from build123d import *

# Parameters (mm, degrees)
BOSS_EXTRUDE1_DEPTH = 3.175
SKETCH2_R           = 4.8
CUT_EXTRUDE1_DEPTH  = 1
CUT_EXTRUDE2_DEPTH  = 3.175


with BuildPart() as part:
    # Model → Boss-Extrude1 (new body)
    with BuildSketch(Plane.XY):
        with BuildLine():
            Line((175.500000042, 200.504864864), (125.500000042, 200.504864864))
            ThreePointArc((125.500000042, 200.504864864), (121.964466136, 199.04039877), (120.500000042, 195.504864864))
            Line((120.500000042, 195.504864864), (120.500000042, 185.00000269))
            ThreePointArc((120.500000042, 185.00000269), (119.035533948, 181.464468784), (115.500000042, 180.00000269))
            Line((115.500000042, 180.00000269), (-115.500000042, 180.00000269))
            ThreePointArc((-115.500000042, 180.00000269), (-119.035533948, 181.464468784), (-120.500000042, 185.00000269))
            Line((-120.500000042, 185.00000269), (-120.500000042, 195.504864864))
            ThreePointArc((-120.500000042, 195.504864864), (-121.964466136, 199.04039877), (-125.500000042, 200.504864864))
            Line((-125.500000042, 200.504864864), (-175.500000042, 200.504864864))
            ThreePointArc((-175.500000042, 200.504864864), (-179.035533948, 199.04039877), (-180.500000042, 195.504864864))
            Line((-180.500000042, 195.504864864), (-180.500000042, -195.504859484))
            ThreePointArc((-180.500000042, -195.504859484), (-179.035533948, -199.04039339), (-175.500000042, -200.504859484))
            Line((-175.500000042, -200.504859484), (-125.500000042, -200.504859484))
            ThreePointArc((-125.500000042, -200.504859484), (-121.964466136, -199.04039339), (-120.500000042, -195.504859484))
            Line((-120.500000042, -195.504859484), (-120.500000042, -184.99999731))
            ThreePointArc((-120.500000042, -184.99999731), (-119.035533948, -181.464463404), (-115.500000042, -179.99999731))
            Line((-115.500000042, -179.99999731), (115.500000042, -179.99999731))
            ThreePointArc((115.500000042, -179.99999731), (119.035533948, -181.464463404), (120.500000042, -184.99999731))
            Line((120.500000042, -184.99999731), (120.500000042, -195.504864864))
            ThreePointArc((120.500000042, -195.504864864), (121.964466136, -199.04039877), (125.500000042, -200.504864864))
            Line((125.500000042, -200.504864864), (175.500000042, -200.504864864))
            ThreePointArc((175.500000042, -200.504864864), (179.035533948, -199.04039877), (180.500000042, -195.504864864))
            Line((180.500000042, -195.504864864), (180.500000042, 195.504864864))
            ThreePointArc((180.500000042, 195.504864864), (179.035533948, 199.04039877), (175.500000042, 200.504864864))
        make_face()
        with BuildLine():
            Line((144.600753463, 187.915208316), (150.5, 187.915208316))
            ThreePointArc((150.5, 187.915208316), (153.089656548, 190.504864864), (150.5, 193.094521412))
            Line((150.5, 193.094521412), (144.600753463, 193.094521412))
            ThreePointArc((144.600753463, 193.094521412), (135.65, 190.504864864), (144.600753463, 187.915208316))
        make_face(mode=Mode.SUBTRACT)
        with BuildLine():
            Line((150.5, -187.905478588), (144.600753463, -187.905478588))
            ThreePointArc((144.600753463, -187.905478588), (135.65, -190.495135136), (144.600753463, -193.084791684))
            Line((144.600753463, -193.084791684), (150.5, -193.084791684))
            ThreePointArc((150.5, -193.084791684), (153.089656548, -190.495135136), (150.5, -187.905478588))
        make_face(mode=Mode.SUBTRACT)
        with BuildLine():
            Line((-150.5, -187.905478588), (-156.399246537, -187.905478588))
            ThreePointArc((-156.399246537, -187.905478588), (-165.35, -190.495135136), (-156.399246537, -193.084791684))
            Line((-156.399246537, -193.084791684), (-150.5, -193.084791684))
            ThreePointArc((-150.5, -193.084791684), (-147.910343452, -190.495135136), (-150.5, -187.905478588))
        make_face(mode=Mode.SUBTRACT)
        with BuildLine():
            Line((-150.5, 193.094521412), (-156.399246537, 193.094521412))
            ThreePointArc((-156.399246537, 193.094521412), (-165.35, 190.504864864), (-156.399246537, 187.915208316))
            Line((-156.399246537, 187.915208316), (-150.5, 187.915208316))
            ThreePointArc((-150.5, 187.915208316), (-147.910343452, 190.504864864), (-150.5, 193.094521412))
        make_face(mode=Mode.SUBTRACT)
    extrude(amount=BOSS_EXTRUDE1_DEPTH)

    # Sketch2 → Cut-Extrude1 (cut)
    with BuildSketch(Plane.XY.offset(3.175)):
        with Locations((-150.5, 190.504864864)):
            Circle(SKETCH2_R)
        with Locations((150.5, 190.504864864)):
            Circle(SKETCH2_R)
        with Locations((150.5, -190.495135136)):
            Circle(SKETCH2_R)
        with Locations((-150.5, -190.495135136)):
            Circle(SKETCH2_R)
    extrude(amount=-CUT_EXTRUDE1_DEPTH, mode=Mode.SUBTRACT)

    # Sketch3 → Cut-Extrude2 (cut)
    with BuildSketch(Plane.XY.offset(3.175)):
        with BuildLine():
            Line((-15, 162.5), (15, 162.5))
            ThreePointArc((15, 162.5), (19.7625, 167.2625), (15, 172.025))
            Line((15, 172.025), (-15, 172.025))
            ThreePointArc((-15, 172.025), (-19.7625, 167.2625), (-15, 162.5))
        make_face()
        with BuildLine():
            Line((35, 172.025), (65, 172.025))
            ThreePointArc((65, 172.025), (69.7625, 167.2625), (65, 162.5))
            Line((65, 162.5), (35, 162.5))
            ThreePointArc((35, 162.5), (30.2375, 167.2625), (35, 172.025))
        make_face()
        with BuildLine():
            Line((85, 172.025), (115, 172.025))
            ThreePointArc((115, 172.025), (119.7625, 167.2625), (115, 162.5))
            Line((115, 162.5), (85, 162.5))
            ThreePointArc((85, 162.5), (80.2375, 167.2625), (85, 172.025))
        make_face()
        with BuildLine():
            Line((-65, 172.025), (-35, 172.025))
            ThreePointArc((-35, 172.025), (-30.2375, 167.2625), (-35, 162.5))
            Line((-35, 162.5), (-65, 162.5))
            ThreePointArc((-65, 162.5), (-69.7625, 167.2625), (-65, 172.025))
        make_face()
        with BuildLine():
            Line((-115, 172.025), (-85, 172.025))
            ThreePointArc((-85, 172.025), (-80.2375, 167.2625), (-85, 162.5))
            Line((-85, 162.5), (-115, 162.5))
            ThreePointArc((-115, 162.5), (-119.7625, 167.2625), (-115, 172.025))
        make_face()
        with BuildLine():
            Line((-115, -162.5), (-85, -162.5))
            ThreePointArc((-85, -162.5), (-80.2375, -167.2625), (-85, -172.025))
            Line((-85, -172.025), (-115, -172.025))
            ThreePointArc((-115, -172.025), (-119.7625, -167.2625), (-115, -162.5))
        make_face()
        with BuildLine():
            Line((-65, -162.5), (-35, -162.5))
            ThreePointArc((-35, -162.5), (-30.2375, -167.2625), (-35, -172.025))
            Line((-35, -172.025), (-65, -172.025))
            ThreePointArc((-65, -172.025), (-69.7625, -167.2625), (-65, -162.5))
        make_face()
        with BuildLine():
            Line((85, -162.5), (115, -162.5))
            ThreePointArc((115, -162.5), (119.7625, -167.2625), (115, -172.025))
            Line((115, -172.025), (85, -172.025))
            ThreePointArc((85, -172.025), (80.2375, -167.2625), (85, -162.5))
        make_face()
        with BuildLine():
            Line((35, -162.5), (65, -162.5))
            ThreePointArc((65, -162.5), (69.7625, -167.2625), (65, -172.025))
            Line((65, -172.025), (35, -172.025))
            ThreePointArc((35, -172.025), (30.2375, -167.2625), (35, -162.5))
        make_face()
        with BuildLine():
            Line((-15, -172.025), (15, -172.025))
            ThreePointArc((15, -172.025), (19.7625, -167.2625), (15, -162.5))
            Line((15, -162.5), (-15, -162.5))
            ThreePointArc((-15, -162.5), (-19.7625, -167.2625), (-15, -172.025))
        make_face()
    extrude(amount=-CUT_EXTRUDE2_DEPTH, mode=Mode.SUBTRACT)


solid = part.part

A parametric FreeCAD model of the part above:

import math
import FreeCAD as App
import Part
import Sketcher
Q = App.Units.Quantity

doc = App.newDocument("Part")
params = doc.addObject("Spreadsheet::Sheet", "Params")
for row, (alias, value) in enumerate([
    ("sketch1_radius", "5 mm"),
    ("sketch1_width", "50 mm"),
    ("sketch1_width2", "231 mm"),
    ("sketch1_radius2", "4.85 mm"),
    ("pad1_length", "3.175 mm"),
    ("sketch2_diameter", "9.6 mm"),
    ("pocket1_length", "1 mm"),
    ("sketch3_width", "30 mm"),
    ("pocket2_length", "3.175 mm"),
], start=1):
    params.set(f"A{row}", alias)
    params.set(f"B{row}", "=" + value)
    params.setAlias(f"B{row}", alias)

body = doc.addObject("PartDesign::Body", "Body")

sketch1 = body.newObject("Sketcher::SketchObject", "Sketch")
sketch1.AttachmentSupport = (doc.getObject("XY_Plane"), [""])
sketch1.MapMode = "FlatFace"
sketch1.addGeometry(Part.LineSegment(App.Vector(175.5, 200.5, 0), App.Vector(125.5, 200.5, 0)), False)
sketch1.addGeometry(Part.ArcOfCircle(Part.Circle(App.Vector(125.5, 195.5, 0), App.Vector(0, 0, 1), 5), math.radians(90), math.radians(180)), False)
sketch1.addGeometry(Part.LineSegment(App.Vector(120.5, 195.5, 0), App.Vector(120.5, 185, 0)), False)
sketch1.addGeometry(Part.ArcOfCircle(Part.Circle(App.Vector(115.5, 185, 0), App.Vector(0, 0, 1), 5), math.radians(-90), math.radians(0)), False)
sketch1.addGeometry(Part.LineSegment(App.Vector(115.5, 180, 0), App.Vector(-115.5, 180, 0)), False)
sketch1.addGeometry(Part.ArcOfCircle(Part.Circle(App.Vector(-115.5, 185, 0), App.Vector(0, 0, 1), 5), math.radians(180), math.radians(270)), False)
sketch1.addGeometry(Part.LineSegment(App.Vector(-120.5, 185, 0), App.Vector(-120.5, 195.5, 0)), False)
sketch1.addGeometry(Part.ArcOfCircle(Part.Circle(App.Vector(-125.5, 195.5, 0), App.Vector(0, 0, 1), 5), math.radians(0), math.radians(90)), False)
sketch1.addGeometry(Part.LineSegment(App.Vector(-125.5, 200.5, 0), App.Vector(-175.5, 200.5, 0)), False)
sketch1.addGeometry(Part.ArcOfCircle(Part.Circle(App.Vector(-175.5, 195.5, 0), App.Vector(0, 0, 1), 5), math.radians(90), math.radians(180)), False)
sketch1.addGeometry(Part.LineSegment(App.Vector(-180.5, 195.5, 0), App.Vector(-180.5, -195.5, 0)), False)
sketch1.addGeometry(Part.ArcOfCircle(Part.Circle(App.Vector(-175.5, -195.5, 0), App.Vector(0, 0, 1), 5), math.radians(180), math.radians(270)), False)
sketch1.addGeometry(Part.LineSegment(App.Vector(-175.5, -200.5, 0), App.Vector(-125.5, -200.5, 0)), False)
sketch1.addGeometry(Part.ArcOfCircle(Part.Circle(App.Vector(-125.5, -195.5, 0), App.Vector(0, 0, 1), 5), math.radians(-90), math.radians(0)), False)
sketch1.addGeometry(Part.LineSegment(App.Vector(-120.5, -195.5, 0), App.Vector(-120.5, -185, 0)), False)
sketch1.addGeometry(Part.ArcOfCircle(Part.Circle(App.Vector(-115.5, -185, 0), App.Vector(0, 0, 1), 5), math.radians(90), math.radians(180)), False)
sketch1.addGeometry(Part.LineSegment(App.Vector(-115.5, -180, 0), App.Vector(115.5, -180, 0)), False)
sketch1.addGeometry(Part.ArcOfCircle(Part.Circle(App.Vector(115.5, -185, 0), App.Vector(0, 0, 1), 5), math.radians(0), math.radians(90)), False)
sketch1.addGeometry(Part.LineSegment(App.Vector(120.5, -185, 0), App.Vector(120.5, -195.5, 0)), False)
sketch1.addGeometry(Part.ArcOfCircle(Part.Circle(App.Vector(125.5, -195.5, 0), App.Vector(0, 0, 1), 5), math.radians(180), math.radians(270)), False)
sketch1.addGeometry(Part.LineSegment(App.Vector(125.5, -200.5, 0), App.Vector(175.5, -200.5, 0)), False)
sketch1.addGeometry(Part.ArcOfCircle(Part.Circle(App.Vector(175.5, -195.5, 0), App.Vector(0, 0, 1), 5), math.radians(-90), math.radians(0)), False)
sketch1.addGeometry(Part.LineSegment(App.Vector(180.5, -195.5, 0), App.Vector(180.5, 195.5, 0)), False)
sketch1.addGeometry(Part.ArcOfCircle(Part.Circle(App.Vector(175.5, 195.5, 0), App.Vector(0, 0, 1), 5), math.radians(0), math.radians(90)), False)
sketch1.addGeometry(Part.LineSegment(App.Vector(-156.4, -187.9, 0), App.Vector(-150.5, -187.9, 0)), False)
sketch1.addGeometry(Part.ArcOfCircle(Part.Circle(App.Vector(-150.5, -190.5, 0), App.Vector(0, 0, 1), 2.6), math.radians(-90), math.radians(90)), False)
sketch1.addGeometry(Part.LineSegment(App.Vector(-150.5, -193.1, 0), App.Vector(-156.4, -193.1, 0)), False)
sketch1.addGeometry(Part.ArcOfCircle(Part.Circle(App.Vector(-160.5, -190.5, 0), App.Vector(0, 0, 1), 4.8), math.radians(32), math.radians(328)), False)
sketch1.addGeometry(Part.LineSegment(App.Vector(144.6, -187.9, 0), App.Vector(150.5, -187.9, 0)), False)
sketch1.addGeometry(Part.ArcOfCircle(Part.Circle(App.Vector(150.5, -190.5, 0), App.Vector(0, 0, 1), 2.6), math.radians(-90), math.radians(90)), False)
sketch1.addGeometry(Part.LineSegment(App.Vector(150.5, -193.1, 0), App.Vector(144.6, -193.1, 0)), False)
sketch1.addGeometry(Part.ArcOfCircle(Part.Circle(App.Vector(140.5, -190.5, 0), App.Vector(0, 0, 1), 4.8), math.radians(32), math.radians(328)), False)
sketch1.addGeometry(Part.LineSegment(App.Vector(-156.4, 193.1, 0), App.Vector(-150.5, 193.1, 0)), False)
sketch1.addGeometry(Part.ArcOfCircle(Part.Circle(App.Vector(-150.5, 190.5, 0), App.Vector(0, 0, 1), 2.6), math.radians(-90), math.radians(90)), False)
sketch1.addGeometry(Part.LineSegment(App.Vector(-150.5, 187.9, 0), App.Vector(-156.4, 187.9, 0)), False)
sketch1.addGeometry(Part.ArcOfCircle(Part.Circle(App.Vector(-160.5, 190.5, 0), App.Vector(0, 0, 1), 4.8), math.radians(32), math.radians(328)), False)
sketch1.addGeometry(Part.LineSegment(App.Vector(150.5, 187.9, 0), App.Vector(144.6, 187.9, 0)), False)
sketch1.addGeometry(Part.ArcOfCircle(Part.Circle(App.Vector(140.5, 190.5, 0), App.Vector(0, 0, 1), 4.8), math.radians(32), math.radians(328)), False)
sketch1.addGeometry(Part.LineSegment(App.Vector(144.6, 193.1, 0), App.Vector(150.5, 193.1, 0)), False)
sketch1.addGeometry(Part.ArcOfCircle(Part.Circle(App.Vector(150.5, 190.5, 0), App.Vector(0, 0, 1), 2.6), math.radians(-90), math.radians(90)), False)
sketch1.addConstraint(Sketcher.Constraint("Tangent", 0, 2, 1, 1))
sketch1.addConstraint(Sketcher.Constraint("Tangent", 1, 2, 2, 1))
sketch1.addConstraint(Sketcher.Constraint("Tangent", 2, 2, 3, 2))
sketch1.addConstraint(Sketcher.Constraint("Tangent", 3, 1, 4, 1))
sketch1.addConstraint(Sketcher.Constraint("Tangent", 4, 2, 5, 2))
sketch1.addConstraint(Sketcher.Constraint("Tangent", 5, 1, 6, 1))
sketch1.addConstraint(Sketcher.Constraint("Tangent", 6, 2, 7, 1))
sketch1.addConstraint(Sketcher.Constraint("Tangent", 7, 2, 8, 1))
sketch1.addConstraint(Sketcher.Constraint("Tangent", 8, 2, 9, 1))
sketch1.addConstraint(Sketcher.Constraint("Tangent", 9, 2, 10, 1))
sketch1.addConstraint(Sketcher.Constraint("Tangent", 10, 2, 11, 1))
sketch1.addConstraint(Sketcher.Constraint("Tangent", 11, 2, 12, 1))
sketch1.addConstraint(Sketcher.Constraint("Tangent", 12, 2, 13, 1))
sketch1.addConstraint(Sketcher.Constraint("Tangent", 13, 2, 14, 1))
sketch1.addConstraint(Sketcher.Constraint("Tangent", 14, 2, 15, 2))
sketch1.addConstraint(Sketcher.Constraint("Tangent", 15, 1, 16, 1))
sketch1.addConstraint(Sketcher.Constraint("Tangent", 16, 2, 17, 2))
sketch1.addConstraint(Sketcher.Constraint("Tangent", 17, 1, 18, 1))
sketch1.addConstraint(Sketcher.Constraint("Tangent", 18, 2, 19, 1))
sketch1.addConstraint(Sketcher.Constraint("Tangent", 19, 2, 20, 1))
sketch1.addConstraint(Sketcher.Constraint("Tangent", 20, 2, 21, 1))
sketch1.addConstraint(Sketcher.Constraint("Tangent", 21, 2, 22, 1))
sketch1.addConstraint(Sketcher.Constraint("Tangent", 22, 2, 23, 1))
sketch1.addConstraint(Sketcher.Constraint("Tangent", 23, 2, 0, 1))
sketch1.addConstraint(Sketcher.Constraint("Tangent", 24, 2, 25, 2))
sketch1.addConstraint(Sketcher.Constraint("Tangent", 25, 1, 26, 1))
sketch1.addConstraint(Sketcher.Constraint("Coincident", 26, 2, 27, 2))
sketch1.addConstraint(Sketcher.Constraint("Coincident", 27, 1, 24, 1))
sketch1.addConstraint(Sketcher.Constraint("Tangent", 28, 2, 29, 2))
sketch1.addConstraint(Sketcher.Constraint("Tangent", 29, 1, 30, 1))
sketch1.addConstraint(Sketcher.Constraint("Coincident", 30, 2, 31, 2))
sketch1.addConstraint(Sketcher.Constraint("Coincident", 31, 1, 28, 1))
sketch1.addConstraint(Sketcher.Constraint("Tangent", 32, 2, 33, 2))
sketch1.addConstraint(Sketcher.Constraint("Tangent", 33, 1, 34, 1))
sketch1.addConstraint(Sketcher.Constraint("Coincident", 34, 2, 35, 2))
sketch1.addConstraint(Sketcher.Constraint("Coincident", 35, 1, 32, 1))
sketch1.addConstraint(Sketcher.Constraint("Coincident", 36, 2, 37, 2))
sketch1.addConstraint(Sketcher.Constraint("Coincident", 37, 1, 38, 1))
sketch1.addConstraint(Sketcher.Constraint("Tangent", 38, 2, 39, 2))
sketch1.addConstraint(Sketcher.Constraint("Tangent", 39, 1, 36, 1))
sketch1.addConstraint(Sketcher.Constraint("Horizontal", 0))
sketch1.addConstraint(Sketcher.Constraint("Vertical", 2))
sketch1.addConstraint(Sketcher.Constraint("Horizontal", 4))
sketch1.addConstraint(Sketcher.Constraint("Vertical", 6))
sketch1.addConstraint(Sketcher.Constraint("Horizontal", 8))
sketch1.addConstraint(Sketcher.Constraint("Vertical", 10))
sketch1.addConstraint(Sketcher.Constraint("Horizontal", 12))
sketch1.addConstraint(Sketcher.Constraint("Vertical", 14))
sketch1.addConstraint(Sketcher.Constraint("Horizontal", 16))
sketch1.addConstraint(Sketcher.Constraint("Vertical", 18))
sketch1.addConstraint(Sketcher.Constraint("Horizontal", 20))
sketch1.addConstraint(Sketcher.Constraint("Vertical", 22))
sketch1.addConstraint(Sketcher.Constraint("Horizontal", 24))
sketch1.addConstraint(Sketcher.Constraint("Horizontal", 26))
sketch1.addConstraint(Sketcher.Constraint("Horizontal", 28))
sketch1.addConstraint(Sketcher.Constraint("Horizontal", 30))
sketch1.addConstraint(Sketcher.Constraint("Horizontal", 32))
sketch1.addConstraint(Sketcher.Constraint("Horizontal", 34))
sketch1.addConstraint(Sketcher.Constraint("Horizontal", 36))
sketch1.addConstraint(Sketcher.Constraint("Horizontal", 38))
sketch1.addConstraint(Sketcher.Constraint("Equal", 1, 3))
sketch1.addConstraint(Sketcher.Constraint("Equal", 3, 5))
sketch1.addConstraint(Sketcher.Constraint("Equal", 5, 7))
sketch1.addConstraint(Sketcher.Constraint("Equal", 7, 9))
sketch1.addConstraint(Sketcher.Constraint("Equal", 9, 11))
sketch1.addConstraint(Sketcher.Constraint("Equal", 11, 13))
sketch1.addConstraint(Sketcher.Constraint("Equal", 13, 15))
sketch1.addConstraint(Sketcher.Constraint("Equal", 15, 17))
sketch1.addConstraint(Sketcher.Constraint("Equal", 17, 19))
sketch1.addConstraint(Sketcher.Constraint("Equal", 19, 21))
sketch1.addConstraint(Sketcher.Constraint("Equal", 21, 23))
sketch1.addConstraint(Sketcher.Constraint("Equal", 25, 29))
sketch1.addConstraint(Sketcher.Constraint("Equal", 27, 31))
sketch1.addConstraint(Sketcher.Constraint("Equal", 29, 33))
sketch1.addConstraint(Sketcher.Constraint("Equal", 31, 35))
sketch1.addConstraint(Sketcher.Constraint("Equal", 35, 37))
sketch1.addConstraint(Sketcher.Constraint("Equal", 33, 39))
sketch1.addConstraint(Sketcher.Constraint("Symmetric", 1, 3, 13, 3, -1, 1))
sketch1.addConstraint(Sketcher.Constraint("Symmetric", 5, 3, 17, 3, -1, 1))
sketch1.addConstraint(Sketcher.Constraint("Symmetric", 9, 3, 21, 3, -1, 1))
sketch1.addConstraint(Sketcher.Constraint("Symmetric", 1, 3, 7, 3, -2))
sketch1.addConstraint(Sketcher.Constraint("Symmetric", 25, 3, 29, 3, -2))
sketch1.addConstraint(Sketcher.Constraint("Symmetric", 33, 3, 39, 3, -2))
sketch1.addConstraint(Sketcher.Constraint("Horizontal", 25, 3, 27, 3))
sketch1.addConstraint(Sketcher.Constraint("Horizontal", 29, 3, 31, 3))
sketch1.addConstraint(Sketcher.Constraint("Horizontal", 33, 3, 35, 3))
sketch1.addConstraint(Sketcher.Constraint("Horizontal", 35, 3, 37, 3))
sketch1.addConstraint(Sketcher.Constraint("Vertical", 25, 3, 33, 3))
sketch1.addConstraint(Sketcher.Constraint("Vertical", 27, 3, 35, 3))
sketch1.addConstraint(Sketcher.Constraint("Vertical", 31, 3, 37, 3))
sketch1.addConstraint(Sketcher.Constraint("Equal", 26, 28))
sketch1.addConstraint(Sketcher.Constraint("Radius", 1, Q("5 mm")))
sketch1.addConstraint(Sketcher.Constraint("DistanceX", 0, 2, 0, 1, Q("50 mm")))
sketch1.addConstraint(Sketcher.Constraint("DistanceX", 4, 2, 4, 1, Q("231 mm")))
sketch1.addConstraint(Sketcher.Constraint("Radius", 27, Q("4.85 mm")))
sketch1.addConstraint(Sketcher.Constraint("DistanceY", 15, 3, 5, 3, Q("370 mm")))
sketch1.addConstraint(Sketcher.Constraint("DistanceX", 25, 3, 13, 3, Q("25 mm")))
sketch1.addConstraint(Sketcher.Constraint("DistanceX", 27, 3, 25, 3, Q("10 mm")))
sketch1.addConstraint(Sketcher.Constraint("DistanceY", 33, 3, 7, 3, Q("5 mm")))
sketch1.addConstraint(Sketcher.Constraint("Radius", 25, Q("2.589657 mm")))
sketch1.addConstraint(Sketcher.Constraint("DistanceY", 22, 1, 22, 2, Q("391.00973 mm")))
sketch1.addConstraint(Sketcher.Constraint("DistanceY", 24, 2, -1, 1, Q("187.905479 mm")))
sketch1.setExpression("Constraints[91]", "Params.sketch1_radius")
sketch1.setExpression("Constraints[92]", "Params.sketch1_width")
sketch1.setExpression("Constraints[93]", "Params.sketch1_width2")
sketch1.setExpression("Constraints[94]", "Params.sketch1_radius2")
pad1 = body.newObject("PartDesign::Pad", "Pad")
pad1.Profile = sketch1
pad1.setExpression("Length", "Params.pad1_length")

sketch2 = body.newObject("Sketcher::SketchObject", "Sketch001")
sketch2.AttachmentSupport = (doc.getObject("XY_Plane"), [""])
sketch2.MapMode = "FlatFace"
sketch2.AttachmentOffset = App.Placement(App.Vector(0, 0, 3.175), App.Rotation())
sketch2.addGeometry(Part.Circle(App.Vector(-150.5, 190.5, 0), App.Vector(0, 0, 1), 4.8), False)
sketch2.addGeometry(Part.Circle(App.Vector(150.5, 190.5, 0), App.Vector(0, 0, 1), 4.8), False)
sketch2.addGeometry(Part.Circle(App.Vector(150.5, -190.5, 0), App.Vector(0, 0, 1), 4.8), False)
sketch2.addGeometry(Part.Circle(App.Vector(-150.5, -190.5, 0), App.Vector(0, 0, 1), 4.8), False)
sketch2.addConstraint(Sketcher.Constraint("Equal", 0, 1))
sketch2.addConstraint(Sketcher.Constraint("Equal", 1, 2))
sketch2.addConstraint(Sketcher.Constraint("Equal", 2, 3))
sketch2.addConstraint(Sketcher.Constraint("Symmetric", 0, 3, 1, 3, -2))
sketch2.addConstraint(Sketcher.Constraint("Symmetric", 2, 3, 3, 3, -2))
sketch2.addConstraint(Sketcher.Constraint("Vertical", 1, 3, 2, 3))
sketch2.addConstraint(Sketcher.Constraint("Diameter", 0, Q("9.6 mm")))
sketch2.addConstraint(Sketcher.Constraint("DistanceX", 0, 3, 1, 3, Q("301 mm")))
sketch2.addConstraint(Sketcher.Constraint("DistanceY", 2, 3, 1, 3, Q("381 mm")))
sketch2.addConstraint(Sketcher.Constraint("DistanceY", -1, 1, 0, 3, Q("190.504865 mm")))
sketch2.setExpression("Constraints[6]", "Params.sketch2_diameter")
pocket1 = body.newObject("PartDesign::Pocket", "Pocket")
pocket1.Profile = sketch2
pocket1.setExpression("Length", "Params.pocket1_length")

sketch3 = body.newObject("Sketcher::SketchObject", "Sketch002")
sketch3.AttachmentSupport = (doc.getObject("XY_Plane"), [""])
sketch3.MapMode = "FlatFace"
sketch3.AttachmentOffset = App.Placement(App.Vector(0, 0, 3.175), App.Rotation())
sketch3.addGeometry(Part.LineSegment(App.Vector(-15, 162.5, 0), App.Vector(15, 162.5, 0)), False)
sketch3.addGeometry(Part.ArcOfCircle(Part.Circle(App.Vector(15, 167.3, 0), App.Vector(0, 0, 1), 4.8), math.radians(-90), math.radians(90)), False)
sketch3.addGeometry(Part.LineSegment(App.Vector(15, 172, 0), App.Vector(-15, 172, 0)), False)
sketch3.addGeometry(Part.ArcOfCircle(Part.Circle(App.Vector(-15, 167.3, 0), App.Vector(0, 0, 1), 4.8), math.radians(90), math.radians(270)), False)
sketch3.addGeometry(Part.LineSegment(App.Vector(65, 172, 0), App.Vector(35, 172, 0)), False)
sketch3.addGeometry(Part.ArcOfCircle(Part.Circle(App.Vector(35, 167.3, 0), App.Vector(0, 0, 1), 4.8), math.radians(90), math.radians(270)), False)
sketch3.addGeometry(Part.LineSegment(App.Vector(35, 162.5, 0), App.Vector(65, 162.5, 0)), False)
sketch3.addGeometry(Part.ArcOfCircle(Part.Circle(App.Vector(65, 167.3, 0), App.Vector(0, 0, 1), 4.8), math.radians(-90), math.radians(90)), False)
sketch3.addGeometry(Part.LineSegment(App.Vector(115, 172, 0), App.Vector(85, 172, 0)), False)
sketch3.addGeometry(Part.ArcOfCircle(Part.Circle(App.Vector(85, 167.3, 0), App.Vector(0, 0, 1), 4.8), math.radians(90), math.radians(270)), False)
sketch3.addGeometry(Part.LineSegment(App.Vector(85, 162.5, 0), App.Vector(115, 162.5, 0)), False)
sketch3.addGeometry(Part.ArcOfCircle(Part.Circle(App.Vector(115, 167.3, 0), App.Vector(0, 0, 1), 4.8), math.radians(-90), math.radians(90)), False)
sketch3.addGeometry(Part.LineSegment(App.Vector(-35, 172, 0), App.Vector(-65, 172, 0)), False)
sketch3.addGeometry(Part.ArcOfCircle(Part.Circle(App.Vector(-65, 167.3, 0), App.Vector(0, 0, 1), 4.8), math.radians(90), math.radians(270)), False)
sketch3.addGeometry(Part.LineSegment(App.Vector(-65, 162.5, 0), App.Vector(-35, 162.5, 0)), False)
sketch3.addGeometry(Part.ArcOfCircle(Part.Circle(App.Vector(-35, 167.3, 0), App.Vector(0, 0, 1), 4.8), math.radians(-90), math.radians(90)), False)
sketch3.addGeometry(Part.LineSegment(App.Vector(-85, 172, 0), App.Vector(-115, 172, 0)), False)
sketch3.addGeometry(Part.ArcOfCircle(Part.Circle(App.Vector(-115, 167.3, 0), App.Vector(0, 0, 1), 4.8), math.radians(90), math.radians(270)), False)
sketch3.addGeometry(Part.LineSegment(App.Vector(-115, 162.5, 0), App.Vector(-85, 162.5, 0)), False)
sketch3.addGeometry(Part.ArcOfCircle(Part.Circle(App.Vector(-85, 167.3, 0), App.Vector(0, 0, 1), 4.8), math.radians(-90), math.radians(90)), False)
sketch3.addGeometry(Part.LineSegment(App.Vector(-85, -162.5, 0), App.Vector(-115, -162.5, 0)), False)
sketch3.addGeometry(Part.ArcOfCircle(Part.Circle(App.Vector(-115, -167.3, 0), App.Vector(0, 0, 1), 4.8), math.radians(90), math.radians(270)), False)
sketch3.addGeometry(Part.LineSegment(App.Vector(-115, -172, 0), App.Vector(-85, -172, 0)), False)
sketch3.addGeometry(Part.ArcOfCircle(Part.Circle(App.Vector(-85, -167.3, 0), App.Vector(0, 0, 1), 4.8), math.radians(-90), math.radians(90)), False)
sketch3.addGeometry(Part.LineSegment(App.Vector(-35, -162.5, 0), App.Vector(-65, -162.5, 0)), False)
sketch3.addGeometry(Part.ArcOfCircle(Part.Circle(App.Vector(-65, -167.3, 0), App.Vector(0, 0, 1), 4.8), math.radians(90), math.radians(270)), False)
sketch3.addGeometry(Part.LineSegment(App.Vector(-65, -172, 0), App.Vector(-35, -172, 0)), False)
sketch3.addGeometry(Part.ArcOfCircle(Part.Circle(App.Vector(-35, -167.3, 0), App.Vector(0, 0, 1), 4.8), math.radians(-90), math.radians(90)), False)
sketch3.addGeometry(Part.LineSegment(App.Vector(115, -162.5, 0), App.Vector(85, -162.5, 0)), False)
sketch3.addGeometry(Part.ArcOfCircle(Part.Circle(App.Vector(85, -167.3, 0), App.Vector(0, 0, 1), 4.8), math.radians(90), math.radians(270)), False)
sketch3.addGeometry(Part.LineSegment(App.Vector(85, -172, 0), App.Vector(115, -172, 0)), False)
sketch3.addGeometry(Part.ArcOfCircle(Part.Circle(App.Vector(115, -167.3, 0), App.Vector(0, 0, 1), 4.8), math.radians(-90), math.radians(90)), False)
sketch3.addGeometry(Part.LineSegment(App.Vector(65, -162.5, 0), App.Vector(35, -162.5, 0)), False)
sketch3.addGeometry(Part.ArcOfCircle(Part.Circle(App.Vector(35, -167.3, 0), App.Vector(0, 0, 1), 4.8), math.radians(90), math.radians(270)), False)
sketch3.addGeometry(Part.LineSegment(App.Vector(35, -172, 0), App.Vector(65, -172, 0)), False)
sketch3.addGeometry(Part.ArcOfCircle(Part.Circle(App.Vector(65, -167.3, 0), App.Vector(0, 0, 1), 4.8), math.radians(-90), math.radians(90)), False)
sketch3.addGeometry(Part.LineSegment(App.Vector(-15, -172, 0), App.Vector(15, -172, 0)), False)
sketch3.addGeometry(Part.ArcOfCircle(Part.Circle(App.Vector(15, -167.3, 0), App.Vector(0, 0, 1), 4.8), math.radians(-90), math.radians(90)), False)
sketch3.addGeometry(Part.LineSegment(App.Vector(15, -162.5, 0), App.Vector(-15, -162.5, 0)), False)
sketch3.addGeometry(Part.ArcOfCircle(Part.Circle(App.Vector(-15, -167.3, 0), App.Vector(0, 0, 1), 4.8), math.radians(90), math.radians(270)), False)
sketch3.addConstraint(Sketcher.Constraint("Tangent", 0, 2, 1, 1))
sketch3.addConstraint(Sketcher.Constraint("Tangent", 1, 2, 2, 1))
sketch3.addConstraint(Sketcher.Constraint("Tangent", 2, 2, 3, 1))
sketch3.addConstraint(Sketcher.Constraint("Tangent", 3, 2, 0, 1))
sketch3.addConstraint(Sketcher.Constraint("Tangent", 4, 2, 5, 1))
sketch3.addConstraint(Sketcher.Constraint("Tangent", 5, 2, 6, 1))
sketch3.addConstraint(Sketcher.Constraint("Tangent", 6, 2, 7, 1))
sketch3.addConstraint(Sketcher.Constraint("Tangent", 7, 2, 4, 1))
sketch3.addConstraint(Sketcher.Constraint("Tangent", 8, 2, 9, 1))
sketch3.addConstraint(Sketcher.Constraint("Tangent", 9, 2, 10, 1))
sketch3.addConstraint(Sketcher.Constraint("Tangent", 10, 2, 11, 1))
sketch3.addConstraint(Sketcher.Constraint("Tangent", 11, 2, 8, 1))
sketch3.addConstraint(Sketcher.Constraint("Tangent", 12, 2, 13, 1))
sketch3.addConstraint(Sketcher.Constraint("Tangent", 13, 2, 14, 1))
sketch3.addConstraint(Sketcher.Constraint("Tangent", 14, 2, 15, 1))
sketch3.addConstraint(Sketcher.Constraint("Tangent", 15, 2, 12, 1))
sketch3.addConstraint(Sketcher.Constraint("Tangent", 16, 2, 17, 1))
sketch3.addConstraint(Sketcher.Constraint("Tangent", 17, 2, 18, 1))
sketch3.addConstraint(Sketcher.Constraint("Tangent", 18, 2, 19, 1))
sketch3.addConstraint(Sketcher.Constraint("Tangent", 19, 2, 16, 1))
sketch3.addConstraint(Sketcher.Constraint("Tangent", 20, 2, 21, 1))
sketch3.addConstraint(Sketcher.Constraint("Tangent", 21, 2, 22, 1))
sketch3.addConstraint(Sketcher.Constraint("Tangent", 22, 2, 23, 1))
sketch3.addConstraint(Sketcher.Constraint("Tangent", 23, 2, 20, 1))
sketch3.addConstraint(Sketcher.Constraint("Tangent", 24, 2, 25, 1))
sketch3.addConstraint(Sketcher.Constraint("Tangent", 25, 2, 26, 1))
sketch3.addConstraint(Sketcher.Constraint("Tangent", 26, 2, 27, 1))
sketch3.addConstraint(Sketcher.Constraint("Tangent", 27, 2, 24, 1))
sketch3.addConstraint(Sketcher.Constraint("Tangent", 28, 2, 29, 1))
sketch3.addConstraint(Sketcher.Constraint("Tangent", 29, 2, 30, 1))
sketch3.addConstraint(Sketcher.Constraint("Tangent", 30, 2, 31, 1))
sketch3.addConstraint(Sketcher.Constraint("Tangent", 31, 2, 28, 1))
sketch3.addConstraint(Sketcher.Constraint("Tangent", 32, 2, 33, 1))
sketch3.addConstraint(Sketcher.Constraint("Tangent", 33, 2, 34, 1))
sketch3.addConstraint(Sketcher.Constraint("Tangent", 34, 2, 35, 1))
sketch3.addConstraint(Sketcher.Constraint("Tangent", 35, 2, 32, 1))
sketch3.addConstraint(Sketcher.Constraint("Tangent", 36, 2, 37, 1))
sketch3.addConstraint(Sketcher.Constraint("Tangent", 37, 2, 38, 1))
sketch3.addConstraint(Sketcher.Constraint("Tangent", 38, 2, 39, 1))
sketch3.addConstraint(Sketcher.Constraint("Tangent", 39, 2, 36, 1))
sketch3.addConstraint(Sketcher.Constraint("Horizontal", 0))
sketch3.addConstraint(Sketcher.Constraint("Horizontal", 2))
sketch3.addConstraint(Sketcher.Constraint("Horizontal", 4))
sketch3.addConstraint(Sketcher.Constraint("Horizontal", 6))
sketch3.addConstraint(Sketcher.Constraint("Horizontal", 8))
sketch3.addConstraint(Sketcher.Constraint("Horizontal", 10))
sketch3.addConstraint(Sketcher.Constraint("Horizontal", 12))
sketch3.addConstraint(Sketcher.Constraint("Horizontal", 14))
sketch3.addConstraint(Sketcher.Constraint("Horizontal", 16))
sketch3.addConstraint(Sketcher.Constraint("Horizontal", 18))
sketch3.addConstraint(Sketcher.Constraint("Horizontal", 20))
sketch3.addConstraint(Sketcher.Constraint("Horizontal", 22))
sketch3.addConstraint(Sketcher.Constraint("Horizontal", 24))
sketch3.addConstraint(Sketcher.Constraint("Horizontal", 26))
sketch3.addConstraint(Sketcher.Constraint("Horizontal", 28))
sketch3.addConstraint(Sketcher.Constraint("Horizontal", 30))
sketch3.addConstraint(Sketcher.Constraint("Horizontal", 32))
sketch3.addConstraint(Sketcher.Constraint("Horizontal", 34))
sketch3.addConstraint(Sketcher.Constraint("Horizontal", 36))
sketch3.addConstraint(Sketcher.Constraint("Horizontal", 38))
sketch3.addConstraint(Sketcher.Constraint("Equal", 3, 5))
sketch3.addConstraint(Sketcher.Constraint("Equal", 7, 9))
sketch3.addConstraint(Sketcher.Constraint("Equal", 11, 13))
sketch3.addConstraint(Sketcher.Constraint("Equal", 15, 17))
sketch3.addConstraint(Sketcher.Constraint("Equal", 19, 21))
sketch3.addConstraint(Sketcher.Constraint("Equal", 23, 25))
sketch3.addConstraint(Sketcher.Constraint("Equal", 27, 29))
sketch3.addConstraint(Sketcher.Constraint("Equal", 31, 33))
sketch3.addConstraint(Sketcher.Constraint("Equal", 35, 37))
sketch3.addConstraint(Sketcher.Constraint("Symmetric", 11, 3, 21, 3, -1, 1))
sketch3.addConstraint(Sketcher.Constraint("Symmetric", 7, 3, 25, 3, -1, 1))
sketch3.addConstraint(Sketcher.Constraint("Symmetric", 19, 3, 29, 3, -1, 1))
sketch3.addConstraint(Sketcher.Constraint("Symmetric", 15, 3, 33, 3, -1, 1))
sketch3.addConstraint(Sketcher.Constraint("Symmetric", 3, 3, 37, 3, -1, 1))
sketch3.addConstraint(Sketcher.Constraint("Symmetric", 7, 3, 13, 3, -2))
sketch3.addConstraint(Sketcher.Constraint("Symmetric", 11, 3, 17, 3, -2))
sketch3.addConstraint(Sketcher.Constraint("Horizontal", 3, 3, 5, 3))
sketch3.addConstraint(Sketcher.Constraint("Horizontal", 7, 3, 9, 3))
sketch3.addConstraint(Sketcher.Constraint("Vertical", 19, 3, 23, 3))
sketch3.addConstraint(Sketcher.Constraint("Vertical", 15, 3, 27, 3))
sketch3.addConstraint(Sketcher.Constraint("Vertical", 9, 3, 29, 3))
sketch3.addConstraint(Sketcher.Constraint("Vertical", 11, 3, 31, 3))
sketch3.addConstraint(Sketcher.Constraint("Vertical", 5, 3, 33, 3))
sketch3.addConstraint(Sketcher.Constraint("Vertical", 7, 3, 35, 3))
sketch3.addConstraint(Sketcher.Constraint("Vertical", 1, 3, 37, 3))
sketch3.addConstraint(Sketcher.Constraint("Vertical", 3, 3, 39, 3))
sketch3.addConstraint(Sketcher.Constraint("Equal", 2, 4))
sketch3.addConstraint(Sketcher.Constraint("Equal", 6, 8))
sketch3.addConstraint(Sketcher.Constraint("DistanceX", 0, 1, 0, 2, Q("30 mm")))
sketch3.addConstraint(Sketcher.Constraint("DistanceX", -1, 1, 5, 3, Q("35 mm")))
sketch3.addConstraint(Sketcher.Constraint("DistanceX", -1, 1, 9, 3, Q("85 mm")))
sketch3.addConstraint(Sketcher.Constraint("DistanceY", -1, 1, 0, 2, Q("162.5 mm")))
sketch3.addConstraint(Sketcher.Constraint("Radius", 1, Q("4.7625 mm")))
sketch3.setExpression("Constraints[88]", "Params.sketch3_width")
pocket2 = body.newObject("PartDesign::Pocket", "Pocket001")
pocket2.Profile = sketch3
pocket2.setExpression("Length", "Params.pocket2_length")

doc.recompute()
